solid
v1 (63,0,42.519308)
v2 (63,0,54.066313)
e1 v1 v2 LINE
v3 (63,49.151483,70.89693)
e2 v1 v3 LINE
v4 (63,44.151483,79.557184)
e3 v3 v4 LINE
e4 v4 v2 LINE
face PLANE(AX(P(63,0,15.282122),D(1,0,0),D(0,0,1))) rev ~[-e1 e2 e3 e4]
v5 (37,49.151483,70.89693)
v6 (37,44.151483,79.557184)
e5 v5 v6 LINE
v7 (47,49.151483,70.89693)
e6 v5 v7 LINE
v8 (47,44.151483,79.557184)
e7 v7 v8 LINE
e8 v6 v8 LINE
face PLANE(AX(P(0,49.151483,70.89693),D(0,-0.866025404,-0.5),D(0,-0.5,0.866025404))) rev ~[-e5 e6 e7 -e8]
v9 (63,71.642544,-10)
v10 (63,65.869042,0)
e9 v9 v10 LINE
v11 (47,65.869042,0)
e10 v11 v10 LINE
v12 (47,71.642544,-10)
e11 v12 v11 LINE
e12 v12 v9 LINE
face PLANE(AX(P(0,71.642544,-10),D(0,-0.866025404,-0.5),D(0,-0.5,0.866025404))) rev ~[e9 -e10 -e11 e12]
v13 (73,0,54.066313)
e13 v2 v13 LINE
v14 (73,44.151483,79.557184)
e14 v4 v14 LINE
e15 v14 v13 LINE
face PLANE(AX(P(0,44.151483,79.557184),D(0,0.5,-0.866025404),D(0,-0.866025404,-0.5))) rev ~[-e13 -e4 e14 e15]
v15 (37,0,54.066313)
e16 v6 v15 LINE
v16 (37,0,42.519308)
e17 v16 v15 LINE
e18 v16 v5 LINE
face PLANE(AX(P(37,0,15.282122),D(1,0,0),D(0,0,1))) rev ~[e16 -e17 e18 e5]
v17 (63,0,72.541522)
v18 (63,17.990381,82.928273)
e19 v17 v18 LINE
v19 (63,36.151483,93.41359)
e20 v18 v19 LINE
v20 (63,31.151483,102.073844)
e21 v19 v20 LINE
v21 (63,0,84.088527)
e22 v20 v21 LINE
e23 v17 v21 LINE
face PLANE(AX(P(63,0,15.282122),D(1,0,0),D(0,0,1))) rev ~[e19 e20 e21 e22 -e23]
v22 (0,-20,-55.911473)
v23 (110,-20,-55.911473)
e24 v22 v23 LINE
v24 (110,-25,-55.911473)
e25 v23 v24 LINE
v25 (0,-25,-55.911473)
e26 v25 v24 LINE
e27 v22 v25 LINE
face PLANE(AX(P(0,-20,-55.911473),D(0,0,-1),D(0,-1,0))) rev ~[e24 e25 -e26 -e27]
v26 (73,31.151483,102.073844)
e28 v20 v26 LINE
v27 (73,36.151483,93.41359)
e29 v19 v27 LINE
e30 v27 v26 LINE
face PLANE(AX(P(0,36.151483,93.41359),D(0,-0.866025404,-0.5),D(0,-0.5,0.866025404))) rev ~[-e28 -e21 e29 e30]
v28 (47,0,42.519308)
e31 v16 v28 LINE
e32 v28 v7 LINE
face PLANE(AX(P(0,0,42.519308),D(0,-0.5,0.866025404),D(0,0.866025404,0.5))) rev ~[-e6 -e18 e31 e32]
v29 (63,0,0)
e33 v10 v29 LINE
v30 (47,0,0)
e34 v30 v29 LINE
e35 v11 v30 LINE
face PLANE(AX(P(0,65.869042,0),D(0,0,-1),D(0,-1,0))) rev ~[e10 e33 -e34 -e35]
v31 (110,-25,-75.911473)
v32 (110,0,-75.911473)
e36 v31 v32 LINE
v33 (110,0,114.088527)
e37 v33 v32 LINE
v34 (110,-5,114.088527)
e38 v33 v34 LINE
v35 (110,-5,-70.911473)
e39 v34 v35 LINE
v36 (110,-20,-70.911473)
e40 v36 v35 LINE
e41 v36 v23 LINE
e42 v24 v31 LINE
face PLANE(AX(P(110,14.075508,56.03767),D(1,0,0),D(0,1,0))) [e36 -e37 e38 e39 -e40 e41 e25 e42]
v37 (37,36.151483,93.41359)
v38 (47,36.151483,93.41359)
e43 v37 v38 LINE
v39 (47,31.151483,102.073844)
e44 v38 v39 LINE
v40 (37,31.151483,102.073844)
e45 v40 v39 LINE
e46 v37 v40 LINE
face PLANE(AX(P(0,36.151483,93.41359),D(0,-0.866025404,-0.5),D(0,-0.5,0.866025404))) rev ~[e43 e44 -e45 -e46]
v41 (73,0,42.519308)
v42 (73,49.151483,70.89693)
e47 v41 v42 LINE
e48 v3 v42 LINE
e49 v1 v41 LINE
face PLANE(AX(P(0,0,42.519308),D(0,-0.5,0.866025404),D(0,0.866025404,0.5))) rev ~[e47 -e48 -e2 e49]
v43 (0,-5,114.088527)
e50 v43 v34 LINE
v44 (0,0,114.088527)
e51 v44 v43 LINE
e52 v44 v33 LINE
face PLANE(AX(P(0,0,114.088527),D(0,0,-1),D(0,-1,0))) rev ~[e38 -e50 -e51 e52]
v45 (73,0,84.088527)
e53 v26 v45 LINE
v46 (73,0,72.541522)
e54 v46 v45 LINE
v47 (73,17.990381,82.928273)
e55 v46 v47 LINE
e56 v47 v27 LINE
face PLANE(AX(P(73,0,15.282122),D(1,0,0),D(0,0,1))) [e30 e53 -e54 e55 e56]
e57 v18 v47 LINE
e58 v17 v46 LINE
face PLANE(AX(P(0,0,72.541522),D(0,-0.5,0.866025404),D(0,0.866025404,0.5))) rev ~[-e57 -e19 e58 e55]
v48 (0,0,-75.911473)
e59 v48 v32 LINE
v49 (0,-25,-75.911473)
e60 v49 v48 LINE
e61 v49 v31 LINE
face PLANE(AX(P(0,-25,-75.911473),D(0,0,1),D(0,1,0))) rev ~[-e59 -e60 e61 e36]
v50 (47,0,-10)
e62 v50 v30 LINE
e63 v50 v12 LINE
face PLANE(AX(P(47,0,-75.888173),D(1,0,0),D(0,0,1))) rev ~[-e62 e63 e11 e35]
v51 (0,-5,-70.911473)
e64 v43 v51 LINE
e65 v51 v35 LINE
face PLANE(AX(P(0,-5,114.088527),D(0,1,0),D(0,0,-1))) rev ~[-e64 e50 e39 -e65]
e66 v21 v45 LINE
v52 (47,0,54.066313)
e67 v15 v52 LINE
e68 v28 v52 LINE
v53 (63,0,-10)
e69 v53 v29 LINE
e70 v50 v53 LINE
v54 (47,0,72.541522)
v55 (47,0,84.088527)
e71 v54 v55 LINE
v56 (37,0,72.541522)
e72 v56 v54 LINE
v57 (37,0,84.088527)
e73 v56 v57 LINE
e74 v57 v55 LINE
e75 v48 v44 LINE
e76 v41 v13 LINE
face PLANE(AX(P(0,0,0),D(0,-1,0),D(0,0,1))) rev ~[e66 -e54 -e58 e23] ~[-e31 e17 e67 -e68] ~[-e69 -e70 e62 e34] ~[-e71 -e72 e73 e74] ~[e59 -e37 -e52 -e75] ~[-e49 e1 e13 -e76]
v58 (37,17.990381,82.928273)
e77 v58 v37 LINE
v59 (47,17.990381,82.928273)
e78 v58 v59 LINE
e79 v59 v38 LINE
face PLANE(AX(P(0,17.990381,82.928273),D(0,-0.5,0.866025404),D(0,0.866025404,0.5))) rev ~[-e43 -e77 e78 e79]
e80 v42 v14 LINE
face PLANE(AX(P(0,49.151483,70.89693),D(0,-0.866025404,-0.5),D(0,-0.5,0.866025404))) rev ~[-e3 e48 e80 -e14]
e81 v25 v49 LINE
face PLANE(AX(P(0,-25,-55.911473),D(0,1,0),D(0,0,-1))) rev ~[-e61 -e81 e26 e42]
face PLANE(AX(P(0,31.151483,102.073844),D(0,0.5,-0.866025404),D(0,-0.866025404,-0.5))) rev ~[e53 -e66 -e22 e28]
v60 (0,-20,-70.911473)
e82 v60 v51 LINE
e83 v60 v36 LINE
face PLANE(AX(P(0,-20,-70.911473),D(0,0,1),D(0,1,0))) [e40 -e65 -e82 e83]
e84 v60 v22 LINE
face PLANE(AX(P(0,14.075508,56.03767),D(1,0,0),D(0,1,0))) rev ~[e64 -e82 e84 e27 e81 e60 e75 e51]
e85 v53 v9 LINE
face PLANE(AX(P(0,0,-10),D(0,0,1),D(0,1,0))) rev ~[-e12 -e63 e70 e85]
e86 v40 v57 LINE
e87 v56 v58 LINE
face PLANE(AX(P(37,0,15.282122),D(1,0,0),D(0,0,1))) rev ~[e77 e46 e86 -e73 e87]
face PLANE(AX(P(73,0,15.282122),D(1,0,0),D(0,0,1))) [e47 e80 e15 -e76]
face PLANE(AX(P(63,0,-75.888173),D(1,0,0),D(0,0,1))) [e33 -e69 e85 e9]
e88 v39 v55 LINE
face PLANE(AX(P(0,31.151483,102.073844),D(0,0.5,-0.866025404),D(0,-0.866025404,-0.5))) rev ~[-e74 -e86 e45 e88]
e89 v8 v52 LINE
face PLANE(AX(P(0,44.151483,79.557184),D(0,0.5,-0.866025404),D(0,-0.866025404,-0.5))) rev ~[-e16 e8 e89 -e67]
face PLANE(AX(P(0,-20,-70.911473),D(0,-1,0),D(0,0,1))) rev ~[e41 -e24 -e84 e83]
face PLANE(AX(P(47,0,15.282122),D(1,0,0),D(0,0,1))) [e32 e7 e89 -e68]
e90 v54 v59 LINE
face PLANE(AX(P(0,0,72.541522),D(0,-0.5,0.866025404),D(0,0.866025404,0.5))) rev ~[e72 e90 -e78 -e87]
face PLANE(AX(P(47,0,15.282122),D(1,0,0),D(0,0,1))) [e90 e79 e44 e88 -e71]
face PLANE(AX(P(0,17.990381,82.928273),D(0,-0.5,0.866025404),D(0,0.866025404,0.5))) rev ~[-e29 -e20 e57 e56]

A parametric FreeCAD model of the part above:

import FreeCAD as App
import Part
import Sketcher

V = App.Vector
Q = App.Units.Quantity


def add_polygon(sketch, points):
    """Adds a closed chain of lines whose ends are joined by coincident constraints."""
    first, n = sketch.GeometryCount, len(points)
    for a, b in zip(points, points[1:] + points[:1]):
        sketch.addGeometry(Part.LineSegment(App.Vector(*a, 0), App.Vector(*b, 0)), False)
    for i in range(n):
        sketch.addConstraint(Sketcher.Constraint("Coincident", first + i, 2, first + (i + 1) % n, 1))

doc = App.newDocument("Part")
body = doc.addObject("PartDesign::Body", "Body")

sketch1 = body.newObject("Sketcher::SketchObject", "Sketch")
sketch1.AttachmentSupport = (doc.getObject("YZ_Plane"), [""])
sketch1.MapMode = "FlatFace"
add_polygon(sketch1, [(0, 43), (49, 71), (44, 80), (0, 54), (0, 73), (18, 83), (36, 93), (31, 102), (0, 84), (0, 114), (-5, 114), (-5, -71), (-20, -71), (-20, -56), (-25, -56), (-25, -76), (0, -76), (0, -10), (72, -10), (66, 0), (0, 0)])
sketch1.addConstraint([
    Sketcher.Constraint("Vertical", 3),
    Sketcher.Constraint("Vertical", 8),
    Sketcher.Constraint("Horizontal", 9),
    Sketcher.Constraint("Vertical", 10),
    Sketcher.Constraint("Horizontal", 11),
    Sketcher.Constraint("Vertical", 12),
    Sketcher.Constraint("Horizontal", 13),
    Sketcher.Constraint("Vertical", 14),
    Sketcher.Constraint("Horizontal", 15),
    Sketcher.Constraint("Vertical", 16),
    Sketcher.Constraint("Horizontal", 17),
    Sketcher.Constraint("Horizontal", 19),
    Sketcher.Constraint("Vertical", 20),
    Sketcher.Constraint("Coincident", 19, 2, -1, 1),
    Sketcher.Constraint("PointOnObject", 2, 2, -2),
    Sketcher.Constraint("PointOnObject", 7, 2, -2),
    Sketcher.Constraint("PointOnObject", 15, 2, -2),
    Sketcher.Constraint("Perpendicular", 0, 1),
    Sketcher.Constraint("Perpendicular", 1, 2),
    Sketcher.Constraint("Parallel", 2, 4),
    Sketcher.Constraint("Parallel", 4, 5),
    Sketcher.Constraint("Perpendicular", 5, 6),
    Sketcher.Constraint("Perpendicular", 6, 7),
    Sketcher.Constraint("Perpendicular", 7, 18),
    Sketcher.Constraint("Equal", 9, 13),
    Sketcher.Constraint("Equal", 11, 12),
    Sketcher.Constraint("Equal", 1, 6),
    Sketcher.Constraint("DistanceX", 9, 2, 9, 1, 5.0),
    Sketcher.Constraint("DistanceX", 11, 2, 11, 1, 15.0),
    Sketcher.Constraint("DistanceY", 8, 1, 8, 2, 30.0),
    Sketcher.Constraint("DistanceY", 10, 2, 10, 1, 185.0),
    Sketcher.Constraint("DistanceY", 14, 2, 14, 1, 20.0),
    Sketcher.Constraint("Angle", 0, Q("30 deg")),
    Sketcher.Constraint("Distance", 1, 10.0),
    Sketcher.Constraint("DistanceY", 16, 2, -1, 1, 10.0),
    Sketcher.Constraint("DistanceX", 5, 2, 1, 2, 8.0),
    Sketcher.Constraint("DistanceX", 19, 2, 19, 1, 65.869042),
    Sketcher.Constraint("DistanceY", 3, 1, 3, 2, 18.475209),
    Sketcher.Constraint("Distance", 2, 50.981742),
    Sketcher.Constraint("DistanceY", 16, 1, 16, 2, 65.911473),
    Sketcher.Constraint("DistanceX", -1, 1, 4, 2, 17.990381),
])
pad1 = body.newObject("PartDesign::Pad", "Pad")
pad1.Profile = sketch1
pad1.Length = 110

sketch2 = body.newObject("Sketcher::SketchObject", "Sketch001")
sketch2.AttachmentSupport = (doc.getObject("XZ_Plane"), [""])
sketch2.MapMode = "FlatFace"
add_polygon(sketch2, [(47, 114), (47, 15), (63, 15), (63, 114)])
add_polygon(sketch2, [(110, -76), (110, 114), (73, 114), (73, 15), (63, 15), (63, -76)])
add_polygon(sketch2, [(0, -76), (47, -76), (47, 15), (37, 15), (37, 114), (0, 114)])
sketch2.addConstraint([
    Sketcher.Constraint("Vertical", 0),
    Sketcher.Constraint("Horizontal", 1),
    Sketcher.Constraint("Vertical", 2),
    Sketcher.Constraint("Horizontal", 3),
    Sketcher.Constraint("Vertical", 4),
    Sketcher.Constraint("Horizontal", 5),
    Sketcher.Constraint("Vertical", 6),
    Sketcher.Constraint("Horizontal", 7),
    Sketcher.Constraint("Vertical", 8),
    Sketcher.Constraint("Horizontal", 9),
    Sketcher.Constraint("Horizontal", 10),
    Sketcher.Constraint("Vertical", 11),
    Sketcher.Constraint("Horizontal", 12),
    Sketcher.Constraint("Vertical", 13),
    Sketcher.Constraint("Horizontal", 14),
    Sketcher.Constraint("Vertical", 15),
    Sketcher.Constraint("Coincident", 7, 2, 1, 2),
    Sketcher.Constraint("Coincident", 11, 2, 0, 2),
    Sketcher.Constraint("PointOnObject", 14, 2, -2),
    Sketcher.Constraint("Horizontal", 3, 2, 4, 2),
    Sketcher.Constraint("Horizontal", 9, 2, 10, 2),
    Sketcher.Constraint("Horizontal", 5, 2, 13, 2),
    Sketcher.Constraint("Equal", 9, 10),
    Sketcher.Constraint("Equal", 7, 12),
    Sketcher.Constraint("DistanceX", 1, 1, 1, 2, 16.0),
    Sketcher.Constraint("DistanceX", 5, 2, 5, 1, 37.0),
    Sketcher.Constraint("DistanceX", 7, 2, 7, 1, 10.0),
    Sketcher.Constraint("DistanceY", 4, 1, 4, 2, 190.0),
    Sketcher.Constraint("DistanceY", 0, 2, 0, 1, 98.829705),
    Sketcher.Constraint("DistanceY", -1, 1, 0, 2, 15.282122),
])
pocket1 = body.newObject("PartDesign::Pocket", "Pocket")
pocket1.Profile = sketch2
pocket1.Length = 100

doc.recompute()
